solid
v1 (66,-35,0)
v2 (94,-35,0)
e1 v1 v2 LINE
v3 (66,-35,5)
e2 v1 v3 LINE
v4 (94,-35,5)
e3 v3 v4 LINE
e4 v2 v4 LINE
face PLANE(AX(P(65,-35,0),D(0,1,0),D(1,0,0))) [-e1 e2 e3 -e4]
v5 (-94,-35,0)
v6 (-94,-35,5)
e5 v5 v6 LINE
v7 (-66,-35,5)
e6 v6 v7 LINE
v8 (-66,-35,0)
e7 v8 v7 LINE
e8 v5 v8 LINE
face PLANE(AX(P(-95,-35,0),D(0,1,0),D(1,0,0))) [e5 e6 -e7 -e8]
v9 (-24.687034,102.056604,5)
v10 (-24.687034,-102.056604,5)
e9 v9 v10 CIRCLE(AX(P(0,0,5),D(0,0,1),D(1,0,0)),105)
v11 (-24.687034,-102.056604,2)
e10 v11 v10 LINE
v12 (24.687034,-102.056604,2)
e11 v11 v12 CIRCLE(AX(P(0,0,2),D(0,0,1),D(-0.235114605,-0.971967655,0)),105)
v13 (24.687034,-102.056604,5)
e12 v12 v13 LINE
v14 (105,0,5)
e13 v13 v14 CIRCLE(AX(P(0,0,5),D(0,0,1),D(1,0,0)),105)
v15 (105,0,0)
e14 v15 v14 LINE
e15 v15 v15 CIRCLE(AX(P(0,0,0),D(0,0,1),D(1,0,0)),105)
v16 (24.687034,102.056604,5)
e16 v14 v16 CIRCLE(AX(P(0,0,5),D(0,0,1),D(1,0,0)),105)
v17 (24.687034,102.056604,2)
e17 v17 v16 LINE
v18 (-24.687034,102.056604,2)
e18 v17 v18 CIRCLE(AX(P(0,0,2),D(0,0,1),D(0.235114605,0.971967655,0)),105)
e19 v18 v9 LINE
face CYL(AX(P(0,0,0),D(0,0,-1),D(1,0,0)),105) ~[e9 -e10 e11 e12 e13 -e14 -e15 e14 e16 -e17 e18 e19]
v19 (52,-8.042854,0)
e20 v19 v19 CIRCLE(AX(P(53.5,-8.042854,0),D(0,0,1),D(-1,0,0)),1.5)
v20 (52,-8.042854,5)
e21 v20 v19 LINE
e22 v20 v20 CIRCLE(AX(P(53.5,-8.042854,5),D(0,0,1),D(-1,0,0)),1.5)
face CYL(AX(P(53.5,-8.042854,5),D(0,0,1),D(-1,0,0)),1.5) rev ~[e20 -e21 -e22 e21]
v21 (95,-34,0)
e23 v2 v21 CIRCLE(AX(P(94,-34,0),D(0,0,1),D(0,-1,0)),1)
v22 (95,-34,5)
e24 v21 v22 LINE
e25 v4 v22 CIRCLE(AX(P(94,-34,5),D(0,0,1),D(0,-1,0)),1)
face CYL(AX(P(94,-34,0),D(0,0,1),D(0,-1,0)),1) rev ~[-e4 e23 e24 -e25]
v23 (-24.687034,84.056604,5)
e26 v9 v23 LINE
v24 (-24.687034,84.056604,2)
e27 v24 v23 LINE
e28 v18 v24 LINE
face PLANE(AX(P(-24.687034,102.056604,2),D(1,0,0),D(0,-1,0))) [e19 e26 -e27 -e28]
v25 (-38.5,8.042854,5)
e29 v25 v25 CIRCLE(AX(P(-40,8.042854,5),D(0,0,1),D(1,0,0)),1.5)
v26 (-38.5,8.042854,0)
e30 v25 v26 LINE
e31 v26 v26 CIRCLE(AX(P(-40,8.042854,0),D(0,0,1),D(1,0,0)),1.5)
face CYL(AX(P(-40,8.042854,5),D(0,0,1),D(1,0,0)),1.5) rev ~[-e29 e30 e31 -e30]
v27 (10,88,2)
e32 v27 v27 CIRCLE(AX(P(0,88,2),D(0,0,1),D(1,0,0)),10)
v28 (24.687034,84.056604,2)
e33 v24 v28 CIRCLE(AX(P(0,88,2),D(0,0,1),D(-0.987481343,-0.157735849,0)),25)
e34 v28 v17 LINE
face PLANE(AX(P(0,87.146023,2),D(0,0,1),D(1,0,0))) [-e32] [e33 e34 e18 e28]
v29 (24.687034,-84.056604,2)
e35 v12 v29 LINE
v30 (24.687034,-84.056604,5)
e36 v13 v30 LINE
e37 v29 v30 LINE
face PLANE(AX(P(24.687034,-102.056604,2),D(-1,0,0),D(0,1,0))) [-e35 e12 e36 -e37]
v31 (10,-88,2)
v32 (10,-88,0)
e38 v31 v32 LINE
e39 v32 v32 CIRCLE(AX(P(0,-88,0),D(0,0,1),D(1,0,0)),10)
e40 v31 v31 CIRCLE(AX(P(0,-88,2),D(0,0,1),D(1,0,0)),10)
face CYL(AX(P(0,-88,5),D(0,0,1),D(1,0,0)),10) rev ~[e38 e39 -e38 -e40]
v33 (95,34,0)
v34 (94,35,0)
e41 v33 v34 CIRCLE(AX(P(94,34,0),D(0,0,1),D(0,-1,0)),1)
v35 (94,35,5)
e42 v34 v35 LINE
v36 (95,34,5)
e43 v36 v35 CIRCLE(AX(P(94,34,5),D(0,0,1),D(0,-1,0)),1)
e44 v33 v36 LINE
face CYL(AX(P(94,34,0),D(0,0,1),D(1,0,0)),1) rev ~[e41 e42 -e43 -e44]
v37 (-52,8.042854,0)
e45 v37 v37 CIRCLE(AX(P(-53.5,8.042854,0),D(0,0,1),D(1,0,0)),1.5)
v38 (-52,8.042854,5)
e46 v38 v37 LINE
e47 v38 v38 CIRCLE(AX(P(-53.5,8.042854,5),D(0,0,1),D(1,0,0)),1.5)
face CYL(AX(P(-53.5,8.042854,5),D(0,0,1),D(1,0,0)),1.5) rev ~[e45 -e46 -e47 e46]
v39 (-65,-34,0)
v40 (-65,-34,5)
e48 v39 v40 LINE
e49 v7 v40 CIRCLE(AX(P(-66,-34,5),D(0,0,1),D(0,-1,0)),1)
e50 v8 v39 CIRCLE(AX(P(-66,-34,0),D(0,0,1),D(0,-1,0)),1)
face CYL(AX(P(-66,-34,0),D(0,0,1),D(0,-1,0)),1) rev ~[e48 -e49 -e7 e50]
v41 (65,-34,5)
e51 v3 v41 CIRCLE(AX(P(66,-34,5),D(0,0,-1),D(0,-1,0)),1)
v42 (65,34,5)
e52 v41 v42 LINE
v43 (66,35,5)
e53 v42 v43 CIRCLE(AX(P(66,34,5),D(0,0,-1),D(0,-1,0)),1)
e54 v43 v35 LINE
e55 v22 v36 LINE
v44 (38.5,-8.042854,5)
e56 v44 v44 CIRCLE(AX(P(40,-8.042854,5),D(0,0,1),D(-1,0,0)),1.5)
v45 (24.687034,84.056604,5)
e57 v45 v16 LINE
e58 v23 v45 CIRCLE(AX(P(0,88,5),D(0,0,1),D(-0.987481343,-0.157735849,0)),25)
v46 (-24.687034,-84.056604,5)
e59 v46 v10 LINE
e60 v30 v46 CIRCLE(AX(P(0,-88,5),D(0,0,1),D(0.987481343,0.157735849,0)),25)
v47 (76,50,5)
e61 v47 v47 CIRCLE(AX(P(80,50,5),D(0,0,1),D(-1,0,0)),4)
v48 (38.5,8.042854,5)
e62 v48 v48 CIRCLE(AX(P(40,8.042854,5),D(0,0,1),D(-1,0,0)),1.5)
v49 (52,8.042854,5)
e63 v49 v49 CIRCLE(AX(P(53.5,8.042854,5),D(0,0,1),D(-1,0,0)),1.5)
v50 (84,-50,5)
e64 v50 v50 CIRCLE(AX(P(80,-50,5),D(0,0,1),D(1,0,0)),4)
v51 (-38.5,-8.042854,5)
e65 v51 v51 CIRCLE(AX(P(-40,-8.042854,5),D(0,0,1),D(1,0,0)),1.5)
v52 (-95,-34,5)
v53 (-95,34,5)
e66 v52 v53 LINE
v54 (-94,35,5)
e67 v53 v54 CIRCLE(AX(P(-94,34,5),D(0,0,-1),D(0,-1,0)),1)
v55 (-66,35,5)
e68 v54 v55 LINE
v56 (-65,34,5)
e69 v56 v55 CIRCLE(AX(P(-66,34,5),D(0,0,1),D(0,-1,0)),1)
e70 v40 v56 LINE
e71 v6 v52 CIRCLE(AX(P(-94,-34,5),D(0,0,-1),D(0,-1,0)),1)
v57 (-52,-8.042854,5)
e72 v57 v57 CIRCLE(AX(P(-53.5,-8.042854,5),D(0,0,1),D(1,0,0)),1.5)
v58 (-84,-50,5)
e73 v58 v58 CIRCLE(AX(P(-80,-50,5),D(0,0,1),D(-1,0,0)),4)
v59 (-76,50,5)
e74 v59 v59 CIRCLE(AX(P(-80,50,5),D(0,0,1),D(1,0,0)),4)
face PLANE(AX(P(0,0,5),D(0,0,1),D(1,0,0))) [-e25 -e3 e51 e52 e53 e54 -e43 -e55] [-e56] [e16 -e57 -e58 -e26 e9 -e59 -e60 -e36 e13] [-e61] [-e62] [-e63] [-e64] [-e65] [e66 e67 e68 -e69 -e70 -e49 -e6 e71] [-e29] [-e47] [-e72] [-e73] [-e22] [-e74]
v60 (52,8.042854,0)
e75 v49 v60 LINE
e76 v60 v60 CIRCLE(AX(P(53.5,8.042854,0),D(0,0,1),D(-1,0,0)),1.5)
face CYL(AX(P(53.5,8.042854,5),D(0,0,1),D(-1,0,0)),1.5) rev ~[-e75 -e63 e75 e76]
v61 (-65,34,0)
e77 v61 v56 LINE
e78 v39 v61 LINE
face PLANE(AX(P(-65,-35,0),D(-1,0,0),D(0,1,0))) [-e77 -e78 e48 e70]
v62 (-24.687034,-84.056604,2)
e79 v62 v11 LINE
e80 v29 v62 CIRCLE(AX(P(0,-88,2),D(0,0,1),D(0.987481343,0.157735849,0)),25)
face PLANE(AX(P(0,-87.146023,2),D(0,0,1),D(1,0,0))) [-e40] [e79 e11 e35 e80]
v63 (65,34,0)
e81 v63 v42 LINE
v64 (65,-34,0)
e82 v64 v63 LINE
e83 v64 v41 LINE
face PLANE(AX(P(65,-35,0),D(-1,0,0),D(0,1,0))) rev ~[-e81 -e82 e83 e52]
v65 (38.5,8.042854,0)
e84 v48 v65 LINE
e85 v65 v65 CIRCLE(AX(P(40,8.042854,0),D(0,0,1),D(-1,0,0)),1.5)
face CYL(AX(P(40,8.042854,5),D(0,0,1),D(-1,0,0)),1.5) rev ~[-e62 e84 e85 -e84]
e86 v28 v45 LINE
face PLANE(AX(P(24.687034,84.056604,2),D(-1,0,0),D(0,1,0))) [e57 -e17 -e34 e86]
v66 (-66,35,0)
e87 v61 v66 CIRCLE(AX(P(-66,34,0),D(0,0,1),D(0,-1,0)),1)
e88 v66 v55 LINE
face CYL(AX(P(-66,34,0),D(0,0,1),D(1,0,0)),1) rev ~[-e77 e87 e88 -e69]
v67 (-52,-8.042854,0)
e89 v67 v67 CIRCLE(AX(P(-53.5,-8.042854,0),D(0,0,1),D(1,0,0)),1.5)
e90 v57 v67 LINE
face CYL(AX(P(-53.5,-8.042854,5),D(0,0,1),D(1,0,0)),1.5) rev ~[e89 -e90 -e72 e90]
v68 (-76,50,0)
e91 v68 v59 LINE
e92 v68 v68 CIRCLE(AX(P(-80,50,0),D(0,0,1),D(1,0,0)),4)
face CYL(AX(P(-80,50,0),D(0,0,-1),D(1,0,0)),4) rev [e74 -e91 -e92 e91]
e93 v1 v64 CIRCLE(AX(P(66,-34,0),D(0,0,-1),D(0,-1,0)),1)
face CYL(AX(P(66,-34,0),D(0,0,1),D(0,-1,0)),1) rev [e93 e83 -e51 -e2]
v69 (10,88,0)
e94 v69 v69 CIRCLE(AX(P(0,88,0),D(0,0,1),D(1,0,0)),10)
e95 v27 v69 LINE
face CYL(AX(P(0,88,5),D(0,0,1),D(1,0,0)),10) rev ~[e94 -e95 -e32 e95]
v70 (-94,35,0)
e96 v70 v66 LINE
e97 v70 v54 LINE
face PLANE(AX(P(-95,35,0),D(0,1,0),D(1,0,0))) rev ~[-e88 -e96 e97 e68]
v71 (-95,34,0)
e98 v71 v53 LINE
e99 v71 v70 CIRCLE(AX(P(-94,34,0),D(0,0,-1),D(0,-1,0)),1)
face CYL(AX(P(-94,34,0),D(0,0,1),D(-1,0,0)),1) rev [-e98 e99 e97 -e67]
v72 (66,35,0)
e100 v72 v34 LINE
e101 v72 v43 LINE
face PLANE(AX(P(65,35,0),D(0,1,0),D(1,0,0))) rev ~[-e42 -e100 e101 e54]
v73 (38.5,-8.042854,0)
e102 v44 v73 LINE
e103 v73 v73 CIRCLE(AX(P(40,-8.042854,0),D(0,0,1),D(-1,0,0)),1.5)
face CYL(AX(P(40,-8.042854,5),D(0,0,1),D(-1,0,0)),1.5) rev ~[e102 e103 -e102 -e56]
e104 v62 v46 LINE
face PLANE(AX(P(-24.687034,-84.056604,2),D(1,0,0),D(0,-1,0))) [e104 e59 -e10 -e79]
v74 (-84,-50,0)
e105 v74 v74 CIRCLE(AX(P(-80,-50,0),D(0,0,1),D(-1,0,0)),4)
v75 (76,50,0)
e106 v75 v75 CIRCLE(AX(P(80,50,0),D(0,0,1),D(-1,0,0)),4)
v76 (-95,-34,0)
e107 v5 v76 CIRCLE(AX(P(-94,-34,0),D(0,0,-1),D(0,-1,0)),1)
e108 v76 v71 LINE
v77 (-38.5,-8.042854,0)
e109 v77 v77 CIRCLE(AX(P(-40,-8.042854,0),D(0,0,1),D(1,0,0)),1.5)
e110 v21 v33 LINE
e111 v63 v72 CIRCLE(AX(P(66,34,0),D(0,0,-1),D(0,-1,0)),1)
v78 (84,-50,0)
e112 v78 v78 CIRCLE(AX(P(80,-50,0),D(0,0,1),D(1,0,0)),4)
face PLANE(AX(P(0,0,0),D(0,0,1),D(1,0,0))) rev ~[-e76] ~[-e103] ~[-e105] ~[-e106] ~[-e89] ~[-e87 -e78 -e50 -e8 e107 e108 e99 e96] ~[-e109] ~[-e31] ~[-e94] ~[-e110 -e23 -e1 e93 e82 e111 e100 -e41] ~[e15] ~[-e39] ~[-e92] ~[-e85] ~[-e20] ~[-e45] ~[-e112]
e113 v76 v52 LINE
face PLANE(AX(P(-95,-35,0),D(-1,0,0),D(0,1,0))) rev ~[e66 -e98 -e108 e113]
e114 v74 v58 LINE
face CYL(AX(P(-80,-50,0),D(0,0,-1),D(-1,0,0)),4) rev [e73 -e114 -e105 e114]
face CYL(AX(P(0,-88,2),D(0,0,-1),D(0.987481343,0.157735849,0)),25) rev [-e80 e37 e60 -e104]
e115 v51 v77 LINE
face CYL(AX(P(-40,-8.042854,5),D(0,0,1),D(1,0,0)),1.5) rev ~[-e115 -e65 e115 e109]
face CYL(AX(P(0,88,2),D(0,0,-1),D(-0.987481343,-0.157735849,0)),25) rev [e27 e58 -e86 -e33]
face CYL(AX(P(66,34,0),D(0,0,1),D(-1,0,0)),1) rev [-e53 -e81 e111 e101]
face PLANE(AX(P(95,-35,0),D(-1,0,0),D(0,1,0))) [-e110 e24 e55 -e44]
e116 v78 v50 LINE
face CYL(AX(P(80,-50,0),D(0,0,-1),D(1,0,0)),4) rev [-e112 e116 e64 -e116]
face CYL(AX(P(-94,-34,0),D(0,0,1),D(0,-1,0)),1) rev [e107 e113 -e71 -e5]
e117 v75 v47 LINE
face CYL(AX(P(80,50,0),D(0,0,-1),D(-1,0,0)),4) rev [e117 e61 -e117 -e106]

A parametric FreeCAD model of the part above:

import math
import FreeCAD as App
import Part
import Sketcher

V = App.Vector
Q = App.Units.Quantity


def edges_at(feature, points):
    """Names of the edges that pass closest to the given points."""
    edges = feature.Shape.Edges
    near = lambda p: min(range(len(edges)), key=lambda i: edges[i].distToShape(Part.Vertex(*p))[0])
    return sorted({f"Edge{near(p) + 1}" for p in points})

doc = App.newDocument("Part")
body = doc.addObject("PartDesign::Body", "Body")

# Sketch on XY plane
sketch1 = body.newObject("Sketcher::SketchObject", "Sketch")
sketch1.AttachmentSupport = (doc.getObject("XY_Plane"), [""])
sketch1.MapMode = "FlatFace"
sketch1.addGeometry([
    Part.Circle(V(0, 0, 0), V(0, 0, 1), 105),  # 0
    Part.Circle(V(-80, -50, 0), V(0, 0, 1), 4),  # 1
    Part.Circle(V(80, -50, 0), V(0, 0, 1), 4),  # 2
    Part.LineSegment(V(-65, -35, 0), V(-95, -35, 0)),  # 3
    Part.LineSegment(V(-95, -35, 0), V(-95, 35, 0)),  # 4
    Part.LineSegment(V(-95, 35, 0), V(-65, 35, 0)),  # 5
    Part.LineSegment(V(-65, 35, 0), V(-65, -35, 0)),  # 6
    Part.Circle(V(-80, 50, 0), V(0, 0, 1), 4),  # 7
    Part.LineSegment(V(95, -35, 0), V(65, -35, 0)),  # 8
    Part.LineSegment(V(65, -35, 0), V(65, 35, 0)),  # 9
    Part.LineSegment(V(65, 35, 0), V(95, 35, 0)),  # 10
    Part.LineSegment(V(95, 35, 0), V(95, -35, 0)),  # 11
    Part.Circle(V(80, 50, 0), V(0, 0, 1), 4),  # 12
], False)
sketch1.addConstraint([
    Sketcher.Constraint("Coincident", 3, 2, 4, 1),
    Sketcher.Constraint("Coincident", 4, 2, 5, 1),
    Sketcher.Constraint("Coincident", 5, 2, 6, 1),
    Sketcher.Constraint("Coincident", 6, 2, 3, 1),
    Sketcher.Constraint("Coincident", 8, 2, 9, 1),
    Sketcher.Constraint("Coincident", 9, 2, 10, 1),
    Sketcher.Constraint("Coincident", 10, 2, 11, 1),
    Sketcher.Constraint("Coincident", 11, 2, 8, 1),
    Sketcher.Constraint("Horizontal", 3),
    Sketcher.Constraint("Vertical", 4),
    Sketcher.Constraint("Horizontal", 5),
    Sketcher.Constraint("Vertical", 6),
    Sketcher.Constraint("Horizontal", 8),
    Sketcher.Constraint("Vertical", 9),
    Sketcher.Constraint("Horizontal", 10),
    Sketcher.Constraint("Vertical", 11),
    Sketcher.Constraint("Coincident", 0, 3, -1, 1),
    Sketcher.Constraint("Equal", 1, 2),
    Sketcher.Constraint("Equal", 2, 7),
    Sketcher.Constraint("Equal", 7, 12),
    Sketcher.Constraint("Symmetric", 2, 3, 7, 3, -1, 1),
    Sketcher.Constraint("Symmetric", 1, 3, 12, 3, -1, 1),
    Sketcher.Constraint("Symmetric", 5, 2, 8, 2, -1, 1),
    Sketcher.Constraint("Symmetric", 3, 2, 10, 2, -1, 1),
    Sketcher.Constraint("Symmetric", 1, 3, 2, 3, -2),
    Sketcher.Constraint("Horizontal", 6, 2, 8, 2),
    Sketcher.Constraint("Diameter", 0, Q("210 mm")),
    Sketcher.Constraint("Diameter", 1, Q("8 mm")),
    Sketcher.Constraint("DistanceX", 3, 2, 3, 1, Q("30 mm")),
    Sketcher.Constraint("DistanceY", 4, 1, 4, 2, Q("70 mm")),
    Sketcher.Constraint("DistanceX", 1, 3, -1, 1, Q("80 mm")),
    Sketcher.Constraint("DistanceY", 1, 3, -1, 1, Q("50 mm")),
    Sketcher.Constraint("DistanceX", 3, 2, -1, 1, Q("95 mm")),
])
pad1 = body.newObject("PartDesign::Pad", "Pad")
pad1.Profile = sketch1
pad1.Length = 5

# Sketch on XY plane
sketch2 = body.newObject("Sketcher::SketchObject", "Sketch001")
sketch2.AttachmentSupport = (doc.getObject("XY_Plane"), [""])
sketch2.MapMode = "FlatFace"
sketch2.AttachmentOffset = App.Placement(V(0, 0, 5), App.Rotation())
sketch2.addGeometry([
    Part.Circle(V(-53.5, -8.042854, 0), V(0, 0, 1), 1.5),  # 0
    Part.Circle(V(-40, -8.042854, 0), V(0, 0, 1), 1.5),  # 1
    Part.Circle(V(-53.5, 8.042854, 0), V(0, 0, 1), 1.5),  # 2
    Part.Circle(V(-40, 8.042854, 0), V(0, 0, 1), 1.5),  # 3
    Part.Circle(V(40, 8.042854, 0), V(0, 0, 1), 1.5),  # 4
    Part.Circle(V(53.5, 8.042854, 0), V(0, 0, 1), 1.5),  # 5
    Part.Circle(V(40, -8.042854, 0), V(0, 0, 1), 1.5),  # 6
    Part.Circle(V(53.5, -8.042854, 0), V(0, 0, 1), 1.5),  # 7
], False)
sketch2.addConstraint([
    Sketcher.Constraint("Equal", 0, 1),
    Sketcher.Constraint("Equal", 1, 2),
    Sketcher.Constraint("Equal", 2, 3),
    Sketcher.Constraint("Equal", 3, 4),
    Sketcher.Constraint("Equal", 4, 5),
    Sketcher.Constraint("Equal", 5, 6),
    Sketcher.Constraint("Equal", 6, 7),
    Sketcher.Constraint("Symmetric", 1, 3, 4, 3, -1, 1),
    Sketcher.Constraint("Symmetric", 0, 3, 5, 3, -1, 1),
    Sketcher.Constraint("Symmetric", 3, 3, 6, 3, -1, 1),
    Sketcher.Constraint("Symmetric", 2, 3, 7, 3, -1, 1),
    Sketcher.Constraint("Symmetric", 3, 3, 4, 3, -2),
    Sketcher.Constraint("Symmetric", 2, 3, 5, 3, -2),
    Sketcher.Constraint("Horizontal", 0, 3, 1, 3),
    Sketcher.Constraint("Diameter", 0, Q("3 mm")),
    Sketcher.Constraint("DistanceX", 1, 3, -1, 1, Q("40 mm")),
    Sketcher.Constraint("DistanceX", 2, 3, 5, 3, Q("107 mm")),
    Sketcher.Constraint("DistanceY", 0, 3, -1, 1, Q("8.042854 mm")),
])
pocket1 = body.newObject("PartDesign::Pocket", "Pocket")
pocket1.Profile = sketch2
pocket1.Type = "ThroughAll"
doc.recompute()

fillet = body.newObject("PartDesign::Fillet", "Fillet")
fillet.Base = (pocket1, edges_at(pocket1, [
    (95, -35, 2.5),
    (95, 35, 2.5),
    (65, 35, 2.5),
    (65, -35, 2.5),
    (-65, -35, 2.5),
    (-65, 35, 2.5),
    (-95, 35, 2.5),
    (-95, -35, 2.5),
]))
fillet.Radius = 1

# Sketch on XY plane
sketch3 = body.newObject("Sketcher::SketchObject", "Sketch002")
sketch3.AttachmentSupport = (doc.getObject("XY_Plane"), [""])
sketch3.MapMode = "FlatFace"
sketch3.AttachmentOffset = App.Placement(V(0, 0, 2), App.Rotation())
sketch3.addGeometry([
    Part.ArcOfCircle(Part.Circle(V(0, 0, 0), V(0, 0, 1), 105), math.radians(76.401622), math.radians(103.598378)),  # 0
    Part.LineSegment(V(-24.687034, 102.056604, 0), V(-24.687034, 84.056604, 0)),  # 1
    Part.ArcOfCircle(Part.Circle(V(0, 88, 0), V(0, 0, 1), 25), math.radians(-170.924499), math.radians(-9.075501)),  # 2
    Part.LineSegment(V(24.687034, 84.056604, 0), V(24.687034, 102.056604, 0)),  # 3
    Part.ArcOfCircle(Part.Circle(V(0, -88, 0), V(0, 0, 1), 25), math.radians(9.075501), math.radians(170.924499)),  # 4
    Part.LineSegment(V(-24.687034, -84.056604, 0), V(-24.687034, -102.056604, 0)),  # 5
    Part.ArcOfCircle(Part.Circle(V(0, 0, 0), V(0, 0, 1), 105), math.radians(-103.598378), math.radians(-76.401622)),  # 6
    Part.LineSegment(V(24.687034, -102.056604, 0), V(24.687034, -84.056604, 0)),  # 7
], False)
sketch3.addConstraint([
    Sketcher.Constraint("Coincident", 0, 2, 1, 1),
    Sketcher.Constraint("Coincident", 1, 2, 2, 1),
    Sketcher.Constraint("Coincident", 2, 2, 3, 1),
    Sketcher.Constraint("Coincident", 3, 2, 0, 1),
    Sketcher.Constraint("Coincident", 4, 2, 5, 1),
    Sketcher.Constraint("Coincident", 5, 2, 6, 1),
    Sketcher.Constraint("Coincident", 6, 2, 7, 1),
    Sketcher.Constraint("Coincident", 7, 2, 4, 1),
    Sketcher.Constraint("Vertical", 1),
    Sketcher.Constraint("Vertical", 3),
    Sketcher.Constraint("Vertical", 5),
    Sketcher.Constraint("Vertical", 7),
    Sketcher.Constraint("Coincident", 0, 3, -1, 1),
    Sketcher.Constraint("Coincident", 6, 3, -1, 1),
    Sketcher.Constraint("Equal", 2, 4),
    Sketcher.Constraint("Equal", 0, 6),
    Sketcher.Constraint("Symmetric", 2, 3, 4, 3, -1, 1),
    Sketcher.Constraint("Symmetric", 1, 2, 2, 2, -2),
    Sketcher.Constraint("Horizontal", 5, 2, 6, 2),
    Sketcher.Constraint("Vertical", 1, 2, 4, 2),
    Sketcher.Constraint("Radius", 0, Q("105 mm")),
    Sketcher.Constraint("Radius", 2, Q("25 mm")),
    Sketcher.Constraint("DistanceY", 1, 2, 1, 1, Q("18 mm")),
    Sketcher.Constraint("DistanceY", -1, 1, 2, 3, Q("88 mm")),
])
pocket2 = body.newObject("PartDesign::Pocket", "Pocket001")
pocket2.Profile = sketch3
pocket2.Length = 3
pocket2.Reversed = True

# Sketch on XY plane
sketch4 = body.newObject("Sketcher::SketchObject", "Sketch003")
sketch4.AttachmentSupport = (doc.getObject("XY_Plane"), [""])
sketch4.MapMode = "FlatFace"
sketch4.AttachmentOffset = App.Placement(V(0, 0, 5), App.Rotation())
sketch4.addGeometry([
    Part.Circle(V(0, 88, 0), V(0, 0, 1), 10),
    Part.Circle(V(0, -88, 0), V(0, 0, 1), 10),
], False)
sketch4.addConstraint([
    Sketcher.Constraint("Equal", 0, 1),
    Sketcher.Constraint("Symmetric", 0, 3, 1, 3, -1, 1),
    Sketcher.Constraint("PointOnObject", 0, 3, -2),
    Sketcher.Constraint("Diameter", 0, Q("20 mm")),
    Sketcher.Constraint("DistanceY", -1, 1, 0, 3, Q("88 mm")),
])
pocket3 = body.newObject("PartDesign::Pocket", "Pocket002")
pocket3.Profile = sketch4
pocket3.Type = "ThroughAll"

doc.recompute()
